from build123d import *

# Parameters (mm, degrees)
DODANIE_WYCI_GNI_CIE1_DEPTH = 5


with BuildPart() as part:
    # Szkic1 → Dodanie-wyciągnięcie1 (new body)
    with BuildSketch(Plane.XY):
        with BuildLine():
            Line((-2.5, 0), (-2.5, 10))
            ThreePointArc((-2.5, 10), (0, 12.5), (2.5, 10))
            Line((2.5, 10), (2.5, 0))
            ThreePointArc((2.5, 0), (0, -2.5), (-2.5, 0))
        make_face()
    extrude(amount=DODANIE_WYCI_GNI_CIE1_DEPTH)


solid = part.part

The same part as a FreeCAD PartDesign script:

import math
import FreeCAD as App
import Part
import Sketcher
Q = App.Units.Quantity

doc = App.newDocument("Part")
params = doc.addObject("Spreadsheet::Sheet", "Params")
for row, (alias, value) in enumerate([
    ("sketch1_radius", "2.5 mm"),
    ("sketch1_height", "10 mm"),
    ("pad1_length", "5 mm"),
], start=1):
    params.set(f"A{row}", alias)
    params.set(f"B{row}", "=" + value)
    params.setAlias(f"B{row}", alias)

body = doc.addObject("PartDesign::Body", "Body")

# Sketch on XY plane
sketch1 = body.newObject("Sketcher::SketchObject", "Sketch")
sketch1.AttachmentSupport = (doc.getObject("XY_Plane"), [""])
sketch1.MapMode = "FlatFace"
sketch1.addGeometry([
    Part.LineSegment(App.Vector(-2.5, 10, 0), App.Vector(-2.5, 0, 0)),
    Part.ArcOfCircle(Part.Circle(App.Vector(0, 0, 0), App.Vector(0, 0, 1), 2.5), math.radians(180), math.radians(360)),
    Part.LineSegment(App.Vector(2.5, 0, 0), App.Vector(2.5, 10, 0)),
    Part.ArcOfCircle(Part.Circle(App.Vector(0, 10, 0), App.Vector(0, 0, 1), 2.5), math.radians(0), math.radians(180)),
], False)
sketch1.addConstraint([
    Sketcher.Constraint("Tangent", 0, 2, 1, 1),
    Sketcher.Constraint("Tangent", 1, 2, 2, 1),
    Sketcher.Constraint("Tangent", 2, 2, 3, 1),
    Sketcher.Constraint("Tangent", 3, 2, 0, 1),
    Sketcher.Constraint("Vertical", 0),
    Sketcher.Constraint("Vertical", 2),
    Sketcher.Constraint("Coincident", 1, 3, -1, 1),
    Sketcher.Constraint("Radius", 1, Q("2.5 mm")),
    Sketcher.Constraint("DistanceY", 0, 2, 0, 1, Q("10 mm")),
])
sketch1.setExpression("Constraints[7]", "Params.sketch1_radius")
sketch1.setExpression("Constraints[8]", "Params.sketch1_height")
pad1 = body.newObject("PartDesign::Pad", "Pad")
pad1.Profile = sketch1
pad1.setExpression("Length", "Params.pad1_length")

doc.recompute()
